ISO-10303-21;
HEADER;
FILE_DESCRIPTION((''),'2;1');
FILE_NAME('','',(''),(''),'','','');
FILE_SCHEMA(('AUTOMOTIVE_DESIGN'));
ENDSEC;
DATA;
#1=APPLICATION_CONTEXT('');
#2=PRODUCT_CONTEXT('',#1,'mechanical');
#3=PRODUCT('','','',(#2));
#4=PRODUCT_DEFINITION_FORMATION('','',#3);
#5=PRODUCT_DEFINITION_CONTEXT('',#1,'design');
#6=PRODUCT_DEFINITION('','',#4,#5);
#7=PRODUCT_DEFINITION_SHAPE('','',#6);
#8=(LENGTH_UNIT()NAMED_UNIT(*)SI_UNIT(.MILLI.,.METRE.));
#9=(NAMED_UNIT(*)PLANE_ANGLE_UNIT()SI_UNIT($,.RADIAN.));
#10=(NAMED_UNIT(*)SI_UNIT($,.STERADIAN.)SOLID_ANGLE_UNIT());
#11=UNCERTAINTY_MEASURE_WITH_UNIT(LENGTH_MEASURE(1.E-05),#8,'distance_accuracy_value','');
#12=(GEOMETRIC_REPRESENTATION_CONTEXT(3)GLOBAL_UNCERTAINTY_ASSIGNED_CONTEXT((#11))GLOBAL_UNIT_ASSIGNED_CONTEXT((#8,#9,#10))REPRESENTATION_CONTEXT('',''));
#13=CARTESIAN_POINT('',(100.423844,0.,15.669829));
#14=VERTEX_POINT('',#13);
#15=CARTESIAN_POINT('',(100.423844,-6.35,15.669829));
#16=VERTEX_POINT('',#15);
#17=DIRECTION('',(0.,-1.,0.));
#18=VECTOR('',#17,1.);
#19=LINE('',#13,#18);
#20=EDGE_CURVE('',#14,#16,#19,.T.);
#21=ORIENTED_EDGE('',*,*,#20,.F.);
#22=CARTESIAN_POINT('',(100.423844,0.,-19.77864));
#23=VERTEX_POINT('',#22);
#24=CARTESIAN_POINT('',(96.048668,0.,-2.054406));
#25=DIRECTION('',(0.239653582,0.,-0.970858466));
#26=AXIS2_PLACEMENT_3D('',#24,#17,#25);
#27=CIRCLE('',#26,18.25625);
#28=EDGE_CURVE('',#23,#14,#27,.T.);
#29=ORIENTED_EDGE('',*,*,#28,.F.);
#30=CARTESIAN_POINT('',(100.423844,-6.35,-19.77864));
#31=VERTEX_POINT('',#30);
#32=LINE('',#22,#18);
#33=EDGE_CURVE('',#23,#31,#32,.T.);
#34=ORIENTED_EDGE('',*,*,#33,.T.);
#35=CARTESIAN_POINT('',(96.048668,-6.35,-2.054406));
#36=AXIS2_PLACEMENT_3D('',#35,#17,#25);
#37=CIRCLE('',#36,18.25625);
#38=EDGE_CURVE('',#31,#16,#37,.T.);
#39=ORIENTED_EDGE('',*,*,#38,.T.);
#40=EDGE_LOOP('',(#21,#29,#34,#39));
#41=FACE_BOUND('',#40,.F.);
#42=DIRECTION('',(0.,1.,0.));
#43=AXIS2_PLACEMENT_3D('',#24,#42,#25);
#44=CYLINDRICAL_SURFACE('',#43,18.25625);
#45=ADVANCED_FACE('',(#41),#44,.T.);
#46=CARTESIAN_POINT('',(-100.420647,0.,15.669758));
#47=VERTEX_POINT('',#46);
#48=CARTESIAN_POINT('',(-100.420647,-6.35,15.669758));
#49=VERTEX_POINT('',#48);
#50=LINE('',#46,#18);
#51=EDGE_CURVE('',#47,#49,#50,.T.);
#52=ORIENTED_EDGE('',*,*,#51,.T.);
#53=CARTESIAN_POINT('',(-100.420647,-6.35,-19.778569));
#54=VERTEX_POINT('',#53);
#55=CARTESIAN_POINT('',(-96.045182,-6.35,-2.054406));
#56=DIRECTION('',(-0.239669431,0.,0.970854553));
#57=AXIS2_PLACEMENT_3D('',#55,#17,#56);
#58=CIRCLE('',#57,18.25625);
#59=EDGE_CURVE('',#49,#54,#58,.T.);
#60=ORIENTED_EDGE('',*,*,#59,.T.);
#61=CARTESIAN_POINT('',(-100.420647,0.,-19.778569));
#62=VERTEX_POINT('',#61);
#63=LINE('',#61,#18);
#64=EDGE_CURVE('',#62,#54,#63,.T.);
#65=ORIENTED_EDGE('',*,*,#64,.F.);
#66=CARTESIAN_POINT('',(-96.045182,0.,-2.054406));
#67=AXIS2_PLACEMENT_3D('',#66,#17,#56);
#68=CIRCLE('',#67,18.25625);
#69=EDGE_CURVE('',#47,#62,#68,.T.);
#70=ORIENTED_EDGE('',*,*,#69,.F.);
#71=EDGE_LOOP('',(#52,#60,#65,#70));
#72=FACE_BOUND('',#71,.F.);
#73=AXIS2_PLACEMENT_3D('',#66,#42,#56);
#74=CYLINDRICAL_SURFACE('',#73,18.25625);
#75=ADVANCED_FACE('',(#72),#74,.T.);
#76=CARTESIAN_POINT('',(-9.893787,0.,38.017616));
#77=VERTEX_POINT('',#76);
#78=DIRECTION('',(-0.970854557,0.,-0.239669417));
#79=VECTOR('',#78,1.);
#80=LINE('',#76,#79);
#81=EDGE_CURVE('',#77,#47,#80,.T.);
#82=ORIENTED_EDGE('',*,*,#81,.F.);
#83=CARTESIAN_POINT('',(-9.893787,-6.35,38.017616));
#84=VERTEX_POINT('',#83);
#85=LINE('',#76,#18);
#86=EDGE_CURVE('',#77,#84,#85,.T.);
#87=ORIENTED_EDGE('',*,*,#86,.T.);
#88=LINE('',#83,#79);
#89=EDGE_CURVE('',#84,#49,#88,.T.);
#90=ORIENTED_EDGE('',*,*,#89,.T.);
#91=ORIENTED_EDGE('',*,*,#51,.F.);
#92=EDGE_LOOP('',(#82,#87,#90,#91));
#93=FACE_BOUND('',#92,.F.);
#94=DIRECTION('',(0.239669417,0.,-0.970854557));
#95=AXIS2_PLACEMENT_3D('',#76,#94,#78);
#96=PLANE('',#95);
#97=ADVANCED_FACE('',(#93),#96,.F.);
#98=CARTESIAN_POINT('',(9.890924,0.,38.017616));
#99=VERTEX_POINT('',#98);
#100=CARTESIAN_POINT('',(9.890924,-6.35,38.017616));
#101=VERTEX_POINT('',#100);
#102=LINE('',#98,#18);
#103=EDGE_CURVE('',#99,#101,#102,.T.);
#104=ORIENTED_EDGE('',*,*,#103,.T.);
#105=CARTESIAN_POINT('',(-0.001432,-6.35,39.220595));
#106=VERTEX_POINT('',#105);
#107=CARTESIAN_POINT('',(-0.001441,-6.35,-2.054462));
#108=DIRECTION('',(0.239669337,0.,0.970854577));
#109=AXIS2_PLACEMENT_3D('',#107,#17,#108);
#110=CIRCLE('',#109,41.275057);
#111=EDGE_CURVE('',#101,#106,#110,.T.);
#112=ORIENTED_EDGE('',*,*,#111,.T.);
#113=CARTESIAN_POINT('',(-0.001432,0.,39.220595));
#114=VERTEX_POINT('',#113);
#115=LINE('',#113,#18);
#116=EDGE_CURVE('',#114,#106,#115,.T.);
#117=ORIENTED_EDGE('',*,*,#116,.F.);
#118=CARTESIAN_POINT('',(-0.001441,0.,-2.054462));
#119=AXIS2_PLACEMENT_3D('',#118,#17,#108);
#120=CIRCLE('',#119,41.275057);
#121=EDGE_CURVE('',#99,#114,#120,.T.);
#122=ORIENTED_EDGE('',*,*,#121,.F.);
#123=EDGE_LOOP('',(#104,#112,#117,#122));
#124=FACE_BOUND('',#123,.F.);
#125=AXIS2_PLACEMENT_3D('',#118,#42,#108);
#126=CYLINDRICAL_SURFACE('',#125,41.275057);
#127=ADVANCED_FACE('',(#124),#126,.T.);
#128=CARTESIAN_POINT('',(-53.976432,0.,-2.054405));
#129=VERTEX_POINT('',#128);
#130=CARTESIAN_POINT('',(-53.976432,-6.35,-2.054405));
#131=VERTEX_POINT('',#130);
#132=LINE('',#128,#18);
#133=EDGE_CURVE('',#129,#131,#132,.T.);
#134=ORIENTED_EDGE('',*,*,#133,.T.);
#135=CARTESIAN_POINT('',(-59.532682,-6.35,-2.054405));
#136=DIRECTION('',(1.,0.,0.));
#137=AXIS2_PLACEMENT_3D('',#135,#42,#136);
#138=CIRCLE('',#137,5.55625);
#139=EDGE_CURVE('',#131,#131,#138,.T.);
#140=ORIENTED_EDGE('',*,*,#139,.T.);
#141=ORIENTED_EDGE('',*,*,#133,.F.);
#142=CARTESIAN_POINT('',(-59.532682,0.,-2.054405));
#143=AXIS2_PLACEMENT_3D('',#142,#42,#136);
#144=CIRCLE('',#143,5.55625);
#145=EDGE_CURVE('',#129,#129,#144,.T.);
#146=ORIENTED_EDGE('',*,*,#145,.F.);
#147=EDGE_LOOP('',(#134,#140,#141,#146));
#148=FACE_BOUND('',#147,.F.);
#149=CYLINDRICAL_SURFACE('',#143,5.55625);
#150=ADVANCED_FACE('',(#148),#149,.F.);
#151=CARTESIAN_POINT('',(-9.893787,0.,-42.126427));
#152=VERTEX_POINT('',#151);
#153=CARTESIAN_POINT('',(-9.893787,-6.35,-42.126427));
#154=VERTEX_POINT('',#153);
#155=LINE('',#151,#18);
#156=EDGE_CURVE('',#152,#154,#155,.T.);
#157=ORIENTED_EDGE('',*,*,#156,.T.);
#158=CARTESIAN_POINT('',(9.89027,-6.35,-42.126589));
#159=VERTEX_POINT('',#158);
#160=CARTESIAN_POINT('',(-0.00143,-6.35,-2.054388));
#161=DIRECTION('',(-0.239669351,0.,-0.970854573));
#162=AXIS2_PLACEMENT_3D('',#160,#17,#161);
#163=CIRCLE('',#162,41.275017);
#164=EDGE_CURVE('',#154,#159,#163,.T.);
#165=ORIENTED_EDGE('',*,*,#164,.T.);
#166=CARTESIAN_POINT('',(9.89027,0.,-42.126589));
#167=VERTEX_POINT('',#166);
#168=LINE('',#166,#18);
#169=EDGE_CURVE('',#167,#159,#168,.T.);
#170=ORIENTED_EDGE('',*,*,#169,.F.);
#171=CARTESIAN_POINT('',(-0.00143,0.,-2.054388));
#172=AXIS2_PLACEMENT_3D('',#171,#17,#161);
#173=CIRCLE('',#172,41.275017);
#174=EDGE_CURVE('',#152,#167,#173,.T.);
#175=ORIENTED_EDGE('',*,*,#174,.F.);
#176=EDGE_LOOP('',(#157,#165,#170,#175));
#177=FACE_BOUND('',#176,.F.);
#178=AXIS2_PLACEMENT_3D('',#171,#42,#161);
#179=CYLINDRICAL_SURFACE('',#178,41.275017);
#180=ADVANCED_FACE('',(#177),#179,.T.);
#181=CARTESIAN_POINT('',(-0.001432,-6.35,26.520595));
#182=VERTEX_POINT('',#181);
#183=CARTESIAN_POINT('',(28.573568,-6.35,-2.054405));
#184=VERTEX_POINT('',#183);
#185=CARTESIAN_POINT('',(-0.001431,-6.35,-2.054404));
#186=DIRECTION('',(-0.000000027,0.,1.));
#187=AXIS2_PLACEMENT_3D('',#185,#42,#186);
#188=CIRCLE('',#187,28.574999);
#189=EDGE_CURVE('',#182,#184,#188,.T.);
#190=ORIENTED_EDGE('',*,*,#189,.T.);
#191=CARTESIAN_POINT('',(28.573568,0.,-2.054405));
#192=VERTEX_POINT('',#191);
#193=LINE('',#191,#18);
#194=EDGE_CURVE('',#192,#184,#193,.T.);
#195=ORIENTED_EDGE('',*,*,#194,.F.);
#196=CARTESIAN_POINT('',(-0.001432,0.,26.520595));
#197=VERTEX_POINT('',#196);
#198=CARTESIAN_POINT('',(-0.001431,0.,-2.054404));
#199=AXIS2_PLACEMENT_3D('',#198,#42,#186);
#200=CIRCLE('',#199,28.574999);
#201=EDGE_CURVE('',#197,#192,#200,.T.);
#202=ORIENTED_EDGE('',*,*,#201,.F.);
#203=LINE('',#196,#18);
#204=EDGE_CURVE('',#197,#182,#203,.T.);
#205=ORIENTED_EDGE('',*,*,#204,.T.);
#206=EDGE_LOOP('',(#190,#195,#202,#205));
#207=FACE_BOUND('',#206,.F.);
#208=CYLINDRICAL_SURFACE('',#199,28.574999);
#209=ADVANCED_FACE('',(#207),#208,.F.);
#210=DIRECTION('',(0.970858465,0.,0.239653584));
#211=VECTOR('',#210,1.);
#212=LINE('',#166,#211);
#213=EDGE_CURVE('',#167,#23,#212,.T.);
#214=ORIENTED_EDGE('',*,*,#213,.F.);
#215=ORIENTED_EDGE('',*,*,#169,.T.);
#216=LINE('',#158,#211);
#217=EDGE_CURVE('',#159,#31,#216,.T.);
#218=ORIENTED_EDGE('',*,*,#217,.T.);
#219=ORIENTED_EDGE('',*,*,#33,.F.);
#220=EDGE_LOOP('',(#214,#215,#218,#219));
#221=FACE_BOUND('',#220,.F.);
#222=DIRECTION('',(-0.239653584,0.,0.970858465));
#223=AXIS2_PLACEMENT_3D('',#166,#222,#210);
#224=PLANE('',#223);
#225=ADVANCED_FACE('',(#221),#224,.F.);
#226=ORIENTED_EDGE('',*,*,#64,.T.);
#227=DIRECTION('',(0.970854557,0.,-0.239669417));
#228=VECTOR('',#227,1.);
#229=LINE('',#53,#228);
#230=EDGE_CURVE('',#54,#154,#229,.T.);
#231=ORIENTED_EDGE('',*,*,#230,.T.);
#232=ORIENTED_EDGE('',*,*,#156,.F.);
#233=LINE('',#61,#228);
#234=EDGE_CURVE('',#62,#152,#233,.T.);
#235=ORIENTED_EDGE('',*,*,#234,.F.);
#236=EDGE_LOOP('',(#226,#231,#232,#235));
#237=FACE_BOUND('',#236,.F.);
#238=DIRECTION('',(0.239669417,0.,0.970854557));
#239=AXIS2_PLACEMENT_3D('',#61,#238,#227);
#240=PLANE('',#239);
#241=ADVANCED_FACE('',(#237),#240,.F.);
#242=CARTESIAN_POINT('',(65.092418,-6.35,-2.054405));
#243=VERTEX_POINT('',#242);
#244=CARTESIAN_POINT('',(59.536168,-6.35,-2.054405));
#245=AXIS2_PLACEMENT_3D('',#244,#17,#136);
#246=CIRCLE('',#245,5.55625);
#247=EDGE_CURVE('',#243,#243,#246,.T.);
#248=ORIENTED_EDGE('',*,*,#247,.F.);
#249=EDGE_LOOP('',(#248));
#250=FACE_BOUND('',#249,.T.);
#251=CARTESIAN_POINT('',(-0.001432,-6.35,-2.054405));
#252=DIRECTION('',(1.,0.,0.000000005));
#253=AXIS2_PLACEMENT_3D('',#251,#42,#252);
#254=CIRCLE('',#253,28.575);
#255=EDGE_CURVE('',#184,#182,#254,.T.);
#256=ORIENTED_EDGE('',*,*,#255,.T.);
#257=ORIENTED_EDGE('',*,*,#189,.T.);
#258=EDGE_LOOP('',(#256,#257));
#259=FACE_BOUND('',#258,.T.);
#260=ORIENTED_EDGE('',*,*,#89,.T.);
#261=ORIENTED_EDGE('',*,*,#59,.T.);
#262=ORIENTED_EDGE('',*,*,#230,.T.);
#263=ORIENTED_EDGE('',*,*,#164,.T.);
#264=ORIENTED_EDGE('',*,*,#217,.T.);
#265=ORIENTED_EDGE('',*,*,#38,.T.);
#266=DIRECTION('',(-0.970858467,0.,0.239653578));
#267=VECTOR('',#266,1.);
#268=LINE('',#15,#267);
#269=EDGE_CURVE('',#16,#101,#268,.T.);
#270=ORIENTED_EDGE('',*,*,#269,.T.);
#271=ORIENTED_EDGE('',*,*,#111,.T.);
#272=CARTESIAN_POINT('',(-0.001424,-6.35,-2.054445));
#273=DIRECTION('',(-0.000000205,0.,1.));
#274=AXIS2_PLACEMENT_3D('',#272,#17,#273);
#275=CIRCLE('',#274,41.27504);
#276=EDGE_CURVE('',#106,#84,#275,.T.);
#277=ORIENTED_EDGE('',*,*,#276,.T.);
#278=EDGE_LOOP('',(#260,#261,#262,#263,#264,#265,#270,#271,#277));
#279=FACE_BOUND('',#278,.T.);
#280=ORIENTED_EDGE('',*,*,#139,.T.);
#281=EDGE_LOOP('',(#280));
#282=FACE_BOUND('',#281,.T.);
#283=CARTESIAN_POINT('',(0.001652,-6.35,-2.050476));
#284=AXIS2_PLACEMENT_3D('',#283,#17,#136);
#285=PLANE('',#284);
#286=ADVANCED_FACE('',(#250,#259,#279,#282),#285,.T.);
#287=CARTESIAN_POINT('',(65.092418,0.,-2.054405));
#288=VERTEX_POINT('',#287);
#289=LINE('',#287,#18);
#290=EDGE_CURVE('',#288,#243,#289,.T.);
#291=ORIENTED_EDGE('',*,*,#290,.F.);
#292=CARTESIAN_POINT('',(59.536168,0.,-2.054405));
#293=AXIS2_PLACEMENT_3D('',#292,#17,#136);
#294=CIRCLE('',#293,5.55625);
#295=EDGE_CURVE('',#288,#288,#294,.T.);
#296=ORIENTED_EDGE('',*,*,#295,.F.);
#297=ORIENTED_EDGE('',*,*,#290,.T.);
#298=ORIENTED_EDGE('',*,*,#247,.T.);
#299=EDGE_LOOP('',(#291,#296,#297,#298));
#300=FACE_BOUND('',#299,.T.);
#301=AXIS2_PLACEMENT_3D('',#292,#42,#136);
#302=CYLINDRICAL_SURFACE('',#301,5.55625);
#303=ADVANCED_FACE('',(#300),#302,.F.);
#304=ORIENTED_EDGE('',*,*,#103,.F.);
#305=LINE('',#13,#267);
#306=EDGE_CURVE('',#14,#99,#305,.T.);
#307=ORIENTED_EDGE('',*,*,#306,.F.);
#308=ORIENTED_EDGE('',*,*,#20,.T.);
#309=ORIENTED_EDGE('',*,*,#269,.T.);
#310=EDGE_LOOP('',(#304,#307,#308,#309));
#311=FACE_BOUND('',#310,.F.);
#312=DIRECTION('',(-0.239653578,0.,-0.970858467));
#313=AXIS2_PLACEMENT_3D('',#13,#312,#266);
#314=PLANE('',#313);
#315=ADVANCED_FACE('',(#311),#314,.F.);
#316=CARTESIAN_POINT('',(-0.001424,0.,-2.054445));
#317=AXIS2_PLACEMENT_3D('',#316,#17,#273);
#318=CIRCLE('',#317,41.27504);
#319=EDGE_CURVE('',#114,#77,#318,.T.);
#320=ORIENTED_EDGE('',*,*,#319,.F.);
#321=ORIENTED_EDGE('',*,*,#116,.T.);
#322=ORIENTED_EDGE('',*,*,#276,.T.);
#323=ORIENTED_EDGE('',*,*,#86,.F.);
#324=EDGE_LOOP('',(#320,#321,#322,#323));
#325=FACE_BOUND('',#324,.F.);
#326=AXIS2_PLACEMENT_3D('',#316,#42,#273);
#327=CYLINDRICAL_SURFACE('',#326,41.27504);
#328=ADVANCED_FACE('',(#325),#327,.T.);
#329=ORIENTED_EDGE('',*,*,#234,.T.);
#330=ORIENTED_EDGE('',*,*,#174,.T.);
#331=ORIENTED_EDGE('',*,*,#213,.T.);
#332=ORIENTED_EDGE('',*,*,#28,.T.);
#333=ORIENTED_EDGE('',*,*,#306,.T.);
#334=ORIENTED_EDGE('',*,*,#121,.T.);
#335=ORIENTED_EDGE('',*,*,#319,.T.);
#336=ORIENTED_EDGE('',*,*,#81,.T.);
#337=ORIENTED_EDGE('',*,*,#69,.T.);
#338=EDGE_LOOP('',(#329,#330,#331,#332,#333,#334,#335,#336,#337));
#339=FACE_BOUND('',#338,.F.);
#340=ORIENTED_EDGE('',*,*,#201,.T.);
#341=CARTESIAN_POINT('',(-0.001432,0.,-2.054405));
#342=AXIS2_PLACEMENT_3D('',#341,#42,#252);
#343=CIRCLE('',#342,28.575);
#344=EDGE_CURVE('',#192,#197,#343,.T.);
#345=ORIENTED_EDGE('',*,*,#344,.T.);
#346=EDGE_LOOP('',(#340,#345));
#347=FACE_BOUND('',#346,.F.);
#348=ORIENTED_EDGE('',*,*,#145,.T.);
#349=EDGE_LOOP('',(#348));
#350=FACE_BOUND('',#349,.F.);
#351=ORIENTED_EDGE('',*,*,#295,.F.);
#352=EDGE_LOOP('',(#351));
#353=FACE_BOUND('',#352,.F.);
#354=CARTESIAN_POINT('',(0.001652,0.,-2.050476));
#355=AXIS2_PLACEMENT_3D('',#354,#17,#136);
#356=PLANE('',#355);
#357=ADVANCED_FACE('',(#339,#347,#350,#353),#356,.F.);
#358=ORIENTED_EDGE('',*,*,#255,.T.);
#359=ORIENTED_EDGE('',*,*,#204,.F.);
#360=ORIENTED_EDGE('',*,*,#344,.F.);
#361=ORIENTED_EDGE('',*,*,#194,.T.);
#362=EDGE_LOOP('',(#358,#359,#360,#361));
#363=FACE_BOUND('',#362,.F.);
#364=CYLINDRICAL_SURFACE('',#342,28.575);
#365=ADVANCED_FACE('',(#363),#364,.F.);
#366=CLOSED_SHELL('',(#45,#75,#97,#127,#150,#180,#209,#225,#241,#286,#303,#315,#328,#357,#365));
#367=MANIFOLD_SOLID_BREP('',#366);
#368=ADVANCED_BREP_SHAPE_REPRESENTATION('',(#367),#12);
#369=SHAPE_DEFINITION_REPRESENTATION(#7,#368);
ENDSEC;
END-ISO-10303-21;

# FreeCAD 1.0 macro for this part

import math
import FreeCAD as App
import Part
import Sketcher
from FreeCAD import Vector
Q = App.Units.Quantity

doc = App.newDocument("Part")
body = doc.addObject("PartDesign::Body", "Body")

sketch1 = body.newObject("Sketcher::SketchObject", "Sketch")
sketch1.AttachmentSupport = (doc.getObject("XZ_Plane"), [""])
sketch1.MapMode = "FlatFace"
sketch1.addGeometry(Part.ArcOfCircle(Part.Circle(Vector(-0.001441, -2.054462, 0), Vector(0, 0, 1), 41.275057), math.radians(76.132975), math.radians(89.999987)), False)
sketch1.addGeometry(Part.ArcOfCircle(Part.Circle(Vector(-0.001424, -2.054445, 0), Vector(0, 0, 1), 41.27504), math.radians(90.000012), math.radians(103.867028)), False)
sketch1.addGeometry(Part.LineSegment(Vector(-9.893787, 38.017616, 0), Vector(-100.420647, 15.669758, 0)), False)
sketch1.addGeometry(Part.ArcOfCircle(Part.Circle(Vector(-96.045182, -2.054406, 0), Vector(0, 0, 1), 18.25625), math.radians(103.867031), math.radians(256.132969)), False)
sketch1.addGeometry(Part.LineSegment(Vector(-100.420647, -19.778569, 0), Vector(-9.893787, -42.126427, 0)), False)
sketch1.addGeometry(Part.ArcOfCircle(Part.Circle(Vector(-0.00143, -2.054388, 0), Vector(0, 0, 1), 41.275017), math.radians(-103.867026), math.radians(-76.133912)), False)
sketch1.addGeometry(Part.LineSegment(Vector(9.89027, -42.126589, 0), Vector(100.423844, -19.77864, 0)), False)
sketch1.addGeometry(Part.ArcOfCircle(Part.Circle(Vector(96.048668, -2.054406, 0), Vector(0, 0, 1), 18.25625), math.radians(-76.133905), math.radians(76.133905)), False)
sketch1.addGeometry(Part.LineSegment(Vector(100.423844, 15.669829, 0), Vector(9.890924, 38.017616, 0)), False)
sketch1.addGeometry(Part.Circle(Vector(-59.532682, -2.054405, 0), Vector(0, 0, 1), 5.55625), False)
sketch1.addGeometry(Part.ArcOfCircle(Part.Circle(Vector(-0.001432, -2.054405, 0), Vector(0, 0, 1), 28.575), math.radians(90), math.radians(360)), False)
sketch1.addGeometry(Part.ArcOfCircle(Part.Circle(Vector(-0.001431, -2.054404, 0), Vector(0, 0, 1), 28.574999), math.radians(-0.000002), math.radians(90.000002)), False)
sketch1.addGeometry(Part.Circle(Vector(59.536168, -2.054405, 0), Vector(0, 0, 1), 5.55625), False)
sketch1.addConstraint(Sketcher.Constraint("Tangent", 0, 2, 1, 1))
sketch1.addConstraint(Sketcher.Constraint("Tangent", 1, 2, 2, 1))
sketch1.addConstraint(Sketcher.Constraint("Tangent", 2, 2, 3, 1))
sketch1.addConstraint(Sketcher.Constraint("Tangent", 3, 2, 4, 1))
sketch1.addConstraint(Sketcher.Constraint("Tangent", 4, 2, 5, 1))
sketch1.addConstraint(Sketcher.Constraint("Tangent", 5, 2, 6, 1))
sketch1.addConstraint(Sketcher.Constraint("Tangent", 6, 2, 7, 1))
sketch1.addConstraint(Sketcher.Constraint("Tangent", 7, 2, 8, 1))
sketch1.addConstraint(Sketcher.Constraint("Coincident", 8, 2, 0, 1))
sketch1.addConstraint(Sketcher.Constraint("Tangent", 10, 1, 11, 2))
sketch1.addConstraint(Sketcher.Constraint("Coincident", 11, 1, 10, 2))
sketch1.addConstraint(Sketcher.Constraint("Equal", 3, 7))
sketch1.addConstraint(Sketcher.Constraint("Equal", 9, 12))
sketch1.addConstraint(Sketcher.Constraint("Horizontal", 3, 3, 7, 3))
sketch1.addConstraint(Sketcher.Constraint("Horizontal", 7, 3, 9, 3))
sketch1.addConstraint(Sketcher.Constraint("Horizontal", 9, 3, 10, 3))
sketch1.addConstraint(Sketcher.Constraint("Horizontal", 11, 3, 12, 3))
sketch1.addConstraint(Sketcher.Constraint("Horizontal", 1, 2, 8, 2))
sketch1.addConstraint(Sketcher.Constraint("Horizontal", 12, 3, 11, 1))
sketch1.addConstraint(Sketcher.Constraint("Vertical", 5, 3, 10, 3))
sketch1.addConstraint(Sketcher.Constraint("Vertical", 11, 3, 0, 2))
sketch1.addConstraint(Sketcher.Constraint("Vertical", 2, 2, 3, 2))
sketch1.addConstraint(Sketcher.Constraint("Vertical", 1, 2, 4, 2))
sketch1.addConstraint(Sketcher.Constraint("Vertical", 0, 2, 10, 1))
sketch1.addConstraint(Sketcher.Constraint("Diameter", 9, Q("0.4375 in")))
sketch1.addConstraint(Sketcher.Constraint("Radius", 3, Q("0.71875 in")))
sketch1.addConstraint(Sketcher.Constraint("Radius", 10, Q("1.125 in")))
sketch1.addConstraint(Sketcher.Constraint("DistanceY", 10, 1, 0, 2, Q("0.5 in")))
sketch1.addConstraint(Sketcher.Constraint("Radius", 1, 41.27504))
sketch1.addConstraint(Sketcher.Constraint("DistanceX", 3, 3, 5, 3, Q("3.7812501 in")))
sketch1.addConstraint(Sketcher.Constraint("DistanceX", 3, 3, 9, 3, Q("1.4375 in")))
sketch1.addConstraint(Sketcher.Constraint("DistanceX", 12, 3, 7, 3, Q("1.4375 in")))
sketch1.addConstraint(Sketcher.Constraint("DistanceX", 5, 3, 12, 3, Q("2.3439999 in")))
sketch1.addConstraint(Sketcher.Constraint("Radius", 0, 41.275057))
sketch1.addConstraint(Sketcher.Constraint("Radius", 5, 41.275017))
sketch1.addConstraint(Sketcher.Constraint("DistanceX", 0, 3, -1, 1, 0.001441))
sketch1.addConstraint(Sketcher.Constraint("DistanceY", 0, 3, -1, 1, 2.054462))
pad1 = body.newObject("PartDesign::Pad", "Pad")
pad1.Profile = sketch1
pad1.Length = Q("0.25 in")

doc.recompute()
